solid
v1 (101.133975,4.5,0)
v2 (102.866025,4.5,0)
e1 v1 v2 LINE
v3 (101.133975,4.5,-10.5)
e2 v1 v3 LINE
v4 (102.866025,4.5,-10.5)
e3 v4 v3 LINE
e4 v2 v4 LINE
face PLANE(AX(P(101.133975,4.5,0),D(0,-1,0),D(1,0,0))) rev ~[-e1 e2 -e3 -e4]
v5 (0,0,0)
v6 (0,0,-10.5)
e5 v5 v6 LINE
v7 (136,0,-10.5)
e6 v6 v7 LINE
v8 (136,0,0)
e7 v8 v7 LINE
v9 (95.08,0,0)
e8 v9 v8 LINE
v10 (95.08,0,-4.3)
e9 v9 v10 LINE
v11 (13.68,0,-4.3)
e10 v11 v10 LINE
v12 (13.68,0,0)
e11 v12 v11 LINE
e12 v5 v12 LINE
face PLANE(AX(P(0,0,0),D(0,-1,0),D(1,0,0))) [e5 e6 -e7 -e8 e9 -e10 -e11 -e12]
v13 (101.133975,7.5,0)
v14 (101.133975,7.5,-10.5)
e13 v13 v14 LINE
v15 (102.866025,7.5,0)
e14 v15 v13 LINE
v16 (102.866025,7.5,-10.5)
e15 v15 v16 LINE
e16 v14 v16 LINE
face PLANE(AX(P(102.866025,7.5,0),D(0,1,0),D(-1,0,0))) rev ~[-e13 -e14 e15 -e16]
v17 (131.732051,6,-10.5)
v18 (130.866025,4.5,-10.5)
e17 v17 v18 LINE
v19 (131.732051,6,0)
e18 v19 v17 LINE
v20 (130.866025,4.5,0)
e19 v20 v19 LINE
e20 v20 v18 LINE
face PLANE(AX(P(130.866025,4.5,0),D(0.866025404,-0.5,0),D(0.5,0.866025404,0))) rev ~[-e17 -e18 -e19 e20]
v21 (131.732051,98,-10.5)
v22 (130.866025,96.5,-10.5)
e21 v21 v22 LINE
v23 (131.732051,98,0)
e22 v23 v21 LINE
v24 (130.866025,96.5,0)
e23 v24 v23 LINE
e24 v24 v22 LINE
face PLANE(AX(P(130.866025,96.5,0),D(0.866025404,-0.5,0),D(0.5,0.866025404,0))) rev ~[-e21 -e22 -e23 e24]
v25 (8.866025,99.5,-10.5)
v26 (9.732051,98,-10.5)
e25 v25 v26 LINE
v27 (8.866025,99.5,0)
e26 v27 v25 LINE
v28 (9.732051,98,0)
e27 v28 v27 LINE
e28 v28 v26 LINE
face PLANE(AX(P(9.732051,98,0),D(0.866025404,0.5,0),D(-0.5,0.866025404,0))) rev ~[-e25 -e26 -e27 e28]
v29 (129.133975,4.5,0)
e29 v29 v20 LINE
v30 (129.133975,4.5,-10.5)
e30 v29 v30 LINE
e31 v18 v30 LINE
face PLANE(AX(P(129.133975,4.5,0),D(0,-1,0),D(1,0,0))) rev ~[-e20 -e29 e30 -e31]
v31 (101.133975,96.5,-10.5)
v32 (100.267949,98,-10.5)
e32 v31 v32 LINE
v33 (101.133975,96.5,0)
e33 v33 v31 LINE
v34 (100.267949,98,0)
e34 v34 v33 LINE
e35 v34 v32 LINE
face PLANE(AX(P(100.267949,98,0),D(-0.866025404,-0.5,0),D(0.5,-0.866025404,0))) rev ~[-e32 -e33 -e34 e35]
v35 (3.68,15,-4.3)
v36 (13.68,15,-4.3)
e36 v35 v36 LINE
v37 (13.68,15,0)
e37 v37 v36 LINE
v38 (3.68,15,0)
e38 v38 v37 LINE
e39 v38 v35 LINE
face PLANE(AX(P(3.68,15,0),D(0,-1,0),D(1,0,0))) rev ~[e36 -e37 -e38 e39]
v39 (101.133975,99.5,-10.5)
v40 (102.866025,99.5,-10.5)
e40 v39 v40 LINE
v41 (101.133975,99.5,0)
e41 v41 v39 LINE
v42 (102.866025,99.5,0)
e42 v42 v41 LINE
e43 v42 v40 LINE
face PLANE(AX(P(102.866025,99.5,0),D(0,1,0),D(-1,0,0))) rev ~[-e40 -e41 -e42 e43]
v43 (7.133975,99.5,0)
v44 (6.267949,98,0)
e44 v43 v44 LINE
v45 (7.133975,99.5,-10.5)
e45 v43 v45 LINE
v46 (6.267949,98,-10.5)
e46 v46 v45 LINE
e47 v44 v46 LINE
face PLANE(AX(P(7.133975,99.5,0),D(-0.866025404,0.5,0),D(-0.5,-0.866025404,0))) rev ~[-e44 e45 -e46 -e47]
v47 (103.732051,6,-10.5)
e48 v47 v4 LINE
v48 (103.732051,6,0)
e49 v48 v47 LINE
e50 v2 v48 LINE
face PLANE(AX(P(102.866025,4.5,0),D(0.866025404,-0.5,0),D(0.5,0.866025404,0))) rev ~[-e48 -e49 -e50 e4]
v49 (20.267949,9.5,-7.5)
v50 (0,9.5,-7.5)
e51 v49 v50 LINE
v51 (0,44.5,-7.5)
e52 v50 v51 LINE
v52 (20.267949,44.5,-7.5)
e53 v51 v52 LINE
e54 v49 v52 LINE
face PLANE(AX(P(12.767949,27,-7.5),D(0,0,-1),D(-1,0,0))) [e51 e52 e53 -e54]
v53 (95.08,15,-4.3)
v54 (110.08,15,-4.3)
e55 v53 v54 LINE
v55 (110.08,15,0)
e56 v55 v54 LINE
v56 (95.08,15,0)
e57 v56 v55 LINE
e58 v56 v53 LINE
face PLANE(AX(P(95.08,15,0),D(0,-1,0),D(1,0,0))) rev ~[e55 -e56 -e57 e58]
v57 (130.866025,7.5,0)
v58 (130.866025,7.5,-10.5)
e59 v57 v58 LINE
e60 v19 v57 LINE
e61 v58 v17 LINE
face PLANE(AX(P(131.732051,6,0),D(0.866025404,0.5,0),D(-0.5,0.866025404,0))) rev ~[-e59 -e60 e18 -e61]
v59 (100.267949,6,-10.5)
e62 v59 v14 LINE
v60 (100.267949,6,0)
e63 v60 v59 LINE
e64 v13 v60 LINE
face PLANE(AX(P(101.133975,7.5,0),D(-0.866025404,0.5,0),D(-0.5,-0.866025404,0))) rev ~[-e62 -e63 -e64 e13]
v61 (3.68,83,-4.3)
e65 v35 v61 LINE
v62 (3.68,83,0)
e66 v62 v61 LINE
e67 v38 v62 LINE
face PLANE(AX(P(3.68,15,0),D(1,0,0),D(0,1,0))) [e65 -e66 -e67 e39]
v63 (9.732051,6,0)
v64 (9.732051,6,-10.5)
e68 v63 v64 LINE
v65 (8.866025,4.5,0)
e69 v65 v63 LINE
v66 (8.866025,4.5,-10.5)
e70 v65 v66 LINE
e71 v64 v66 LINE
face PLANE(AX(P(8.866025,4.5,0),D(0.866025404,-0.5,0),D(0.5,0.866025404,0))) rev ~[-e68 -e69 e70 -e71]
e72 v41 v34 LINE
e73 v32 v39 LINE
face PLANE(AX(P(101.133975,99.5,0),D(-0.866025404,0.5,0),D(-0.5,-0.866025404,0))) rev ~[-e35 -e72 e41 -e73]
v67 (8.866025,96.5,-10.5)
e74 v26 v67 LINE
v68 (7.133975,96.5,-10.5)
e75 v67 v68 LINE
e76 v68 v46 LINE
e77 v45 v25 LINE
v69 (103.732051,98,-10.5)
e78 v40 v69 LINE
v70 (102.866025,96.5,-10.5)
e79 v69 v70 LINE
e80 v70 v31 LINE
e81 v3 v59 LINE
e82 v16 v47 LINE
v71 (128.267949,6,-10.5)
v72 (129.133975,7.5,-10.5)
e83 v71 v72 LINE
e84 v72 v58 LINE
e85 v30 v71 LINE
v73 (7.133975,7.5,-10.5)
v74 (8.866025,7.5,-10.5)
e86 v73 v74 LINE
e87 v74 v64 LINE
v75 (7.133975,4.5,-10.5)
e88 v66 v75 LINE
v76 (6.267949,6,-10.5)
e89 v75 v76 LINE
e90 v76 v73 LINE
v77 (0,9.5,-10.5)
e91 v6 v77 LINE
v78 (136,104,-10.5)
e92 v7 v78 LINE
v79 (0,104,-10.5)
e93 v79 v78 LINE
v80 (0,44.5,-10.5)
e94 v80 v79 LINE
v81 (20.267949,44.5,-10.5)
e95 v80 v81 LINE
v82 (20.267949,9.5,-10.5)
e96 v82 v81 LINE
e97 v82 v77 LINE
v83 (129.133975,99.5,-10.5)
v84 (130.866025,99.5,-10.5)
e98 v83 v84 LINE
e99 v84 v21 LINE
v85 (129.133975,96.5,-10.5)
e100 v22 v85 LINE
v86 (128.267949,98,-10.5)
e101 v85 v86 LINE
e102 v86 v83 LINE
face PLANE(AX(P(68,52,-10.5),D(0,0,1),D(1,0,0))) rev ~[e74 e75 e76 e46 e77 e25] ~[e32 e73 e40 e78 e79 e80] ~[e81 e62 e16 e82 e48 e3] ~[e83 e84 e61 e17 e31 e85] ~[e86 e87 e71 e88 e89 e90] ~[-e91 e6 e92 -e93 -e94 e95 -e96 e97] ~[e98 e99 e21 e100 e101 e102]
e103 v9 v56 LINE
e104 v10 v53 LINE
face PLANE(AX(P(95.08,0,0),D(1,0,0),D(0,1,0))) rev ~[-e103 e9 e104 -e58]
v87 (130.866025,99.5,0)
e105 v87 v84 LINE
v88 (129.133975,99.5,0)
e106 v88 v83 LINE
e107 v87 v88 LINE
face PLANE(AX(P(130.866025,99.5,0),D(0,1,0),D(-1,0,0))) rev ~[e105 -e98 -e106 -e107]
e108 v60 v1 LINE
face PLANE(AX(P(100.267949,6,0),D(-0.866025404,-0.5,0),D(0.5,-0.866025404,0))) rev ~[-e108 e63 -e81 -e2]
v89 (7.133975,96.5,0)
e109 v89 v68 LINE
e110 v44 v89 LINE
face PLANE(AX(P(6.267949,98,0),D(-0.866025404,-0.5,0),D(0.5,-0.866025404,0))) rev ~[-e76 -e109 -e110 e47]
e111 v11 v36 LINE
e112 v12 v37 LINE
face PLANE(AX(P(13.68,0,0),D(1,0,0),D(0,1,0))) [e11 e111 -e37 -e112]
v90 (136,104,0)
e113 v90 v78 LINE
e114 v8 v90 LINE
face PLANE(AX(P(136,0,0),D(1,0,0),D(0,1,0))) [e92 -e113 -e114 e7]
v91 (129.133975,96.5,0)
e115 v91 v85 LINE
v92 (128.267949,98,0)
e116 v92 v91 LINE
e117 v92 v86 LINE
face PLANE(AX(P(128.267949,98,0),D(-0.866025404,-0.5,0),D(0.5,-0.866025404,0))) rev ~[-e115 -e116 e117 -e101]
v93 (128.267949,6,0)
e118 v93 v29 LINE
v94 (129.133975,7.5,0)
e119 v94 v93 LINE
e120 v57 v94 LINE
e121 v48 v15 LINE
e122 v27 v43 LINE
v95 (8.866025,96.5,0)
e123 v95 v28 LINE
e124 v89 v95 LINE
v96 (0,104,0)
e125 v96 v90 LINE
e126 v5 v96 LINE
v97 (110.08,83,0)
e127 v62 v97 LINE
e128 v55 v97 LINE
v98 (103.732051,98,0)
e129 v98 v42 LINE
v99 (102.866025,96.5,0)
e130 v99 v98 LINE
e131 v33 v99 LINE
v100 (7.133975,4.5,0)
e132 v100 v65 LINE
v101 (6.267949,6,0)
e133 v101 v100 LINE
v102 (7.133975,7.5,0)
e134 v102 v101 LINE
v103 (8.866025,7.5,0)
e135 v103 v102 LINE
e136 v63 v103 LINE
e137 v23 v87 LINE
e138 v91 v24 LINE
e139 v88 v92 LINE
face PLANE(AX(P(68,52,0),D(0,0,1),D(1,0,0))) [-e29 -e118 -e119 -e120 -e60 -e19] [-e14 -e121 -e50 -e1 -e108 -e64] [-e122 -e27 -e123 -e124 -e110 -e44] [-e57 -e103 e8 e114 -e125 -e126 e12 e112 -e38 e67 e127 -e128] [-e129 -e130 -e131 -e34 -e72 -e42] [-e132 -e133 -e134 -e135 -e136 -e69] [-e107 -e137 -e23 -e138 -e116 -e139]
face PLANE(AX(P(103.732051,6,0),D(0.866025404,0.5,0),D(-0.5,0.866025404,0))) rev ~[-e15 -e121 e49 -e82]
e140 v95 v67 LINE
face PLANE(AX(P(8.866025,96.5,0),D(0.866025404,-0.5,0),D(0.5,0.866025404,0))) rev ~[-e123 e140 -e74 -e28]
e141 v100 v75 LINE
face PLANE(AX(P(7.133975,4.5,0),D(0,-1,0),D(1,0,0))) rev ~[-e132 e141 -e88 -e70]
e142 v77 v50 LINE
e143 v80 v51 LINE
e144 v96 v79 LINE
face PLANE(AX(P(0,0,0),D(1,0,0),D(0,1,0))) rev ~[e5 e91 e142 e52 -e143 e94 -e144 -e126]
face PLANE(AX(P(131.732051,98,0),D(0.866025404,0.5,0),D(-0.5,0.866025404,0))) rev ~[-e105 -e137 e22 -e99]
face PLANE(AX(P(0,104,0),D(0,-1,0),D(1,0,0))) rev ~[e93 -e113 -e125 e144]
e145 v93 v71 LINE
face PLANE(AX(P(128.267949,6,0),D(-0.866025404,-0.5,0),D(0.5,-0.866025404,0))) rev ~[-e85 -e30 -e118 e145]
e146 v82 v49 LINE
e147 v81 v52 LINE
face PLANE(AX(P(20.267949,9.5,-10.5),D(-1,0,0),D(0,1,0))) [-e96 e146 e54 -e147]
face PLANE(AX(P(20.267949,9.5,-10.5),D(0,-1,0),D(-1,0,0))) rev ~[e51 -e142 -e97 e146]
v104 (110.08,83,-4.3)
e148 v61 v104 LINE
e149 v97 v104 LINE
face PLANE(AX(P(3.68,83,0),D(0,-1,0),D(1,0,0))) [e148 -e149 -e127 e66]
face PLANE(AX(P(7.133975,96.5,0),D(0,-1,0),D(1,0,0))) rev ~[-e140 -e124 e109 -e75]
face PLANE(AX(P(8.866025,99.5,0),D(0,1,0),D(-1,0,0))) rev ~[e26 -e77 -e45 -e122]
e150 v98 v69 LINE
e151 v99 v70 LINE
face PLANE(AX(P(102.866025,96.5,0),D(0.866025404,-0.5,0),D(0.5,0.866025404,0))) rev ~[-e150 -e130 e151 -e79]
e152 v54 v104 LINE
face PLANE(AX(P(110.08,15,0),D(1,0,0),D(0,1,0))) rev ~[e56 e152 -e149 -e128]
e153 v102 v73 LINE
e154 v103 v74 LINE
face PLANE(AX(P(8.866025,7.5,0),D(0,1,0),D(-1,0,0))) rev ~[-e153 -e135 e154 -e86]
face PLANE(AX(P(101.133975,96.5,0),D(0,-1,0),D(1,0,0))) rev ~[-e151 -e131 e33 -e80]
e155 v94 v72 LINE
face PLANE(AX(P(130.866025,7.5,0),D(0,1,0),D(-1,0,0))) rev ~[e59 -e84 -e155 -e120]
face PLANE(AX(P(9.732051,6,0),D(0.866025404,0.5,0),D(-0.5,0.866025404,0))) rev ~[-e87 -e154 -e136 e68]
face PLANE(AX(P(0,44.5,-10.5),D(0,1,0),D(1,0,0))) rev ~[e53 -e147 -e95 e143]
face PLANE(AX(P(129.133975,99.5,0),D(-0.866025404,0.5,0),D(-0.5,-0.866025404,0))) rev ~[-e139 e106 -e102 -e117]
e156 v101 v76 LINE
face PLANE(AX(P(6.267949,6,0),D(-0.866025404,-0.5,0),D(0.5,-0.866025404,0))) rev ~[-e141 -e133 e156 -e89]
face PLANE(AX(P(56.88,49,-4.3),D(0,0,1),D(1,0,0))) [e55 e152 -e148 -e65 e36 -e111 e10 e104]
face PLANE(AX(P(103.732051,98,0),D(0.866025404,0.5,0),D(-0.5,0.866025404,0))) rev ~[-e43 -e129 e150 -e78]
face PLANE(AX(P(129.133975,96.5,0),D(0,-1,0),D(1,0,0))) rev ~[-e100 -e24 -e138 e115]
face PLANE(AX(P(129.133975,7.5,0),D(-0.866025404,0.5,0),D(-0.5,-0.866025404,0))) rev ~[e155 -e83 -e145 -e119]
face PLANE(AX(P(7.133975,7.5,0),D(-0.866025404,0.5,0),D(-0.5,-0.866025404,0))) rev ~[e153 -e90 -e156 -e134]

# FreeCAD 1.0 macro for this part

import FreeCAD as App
import Part
import Sketcher

V = App.Vector
Q = App.Units.Quantity


def add_polygon(sketch, points):
    """Adds a closed chain of lines whose ends are joined by coincident constraints."""
    first, n = sketch.GeometryCount, len(points)
    for a, b in zip(points, points[1:] + points[:1]):
        sketch.addGeometry(Part.LineSegment(App.Vector(*a, 0), App.Vector(*b, 0)), False)
    for i in range(n):
        sketch.addConstraint(Sketcher.Constraint("Coincident", first + i, 2, first + (i + 1) % n, 1))

doc = App.newDocument("Part")
body = doc.addObject("PartDesign::Body", "Body")

# Sketch on XY plane
sketch1 = body.newObject("Sketcher::SketchObject", "Sketch")
sketch1.AttachmentSupport = (doc.getObject("XY_Plane"), [""])
sketch1.MapMode = "FlatFace"
add_polygon(sketch1, [(0, 104), (0, 0), (136, 0), (136, 104)])  # lines 0-3
sketch1.addConstraint([
    Sketcher.Constraint("Vertical", 0),
    Sketcher.Constraint("Horizontal", 1),
    Sketcher.Constraint("Vertical", 2),
    Sketcher.Constraint("Horizontal", 3),
    Sketcher.Constraint("Coincident", 0, 2, -1, 1),
    Sketcher.Constraint("DistanceX", 1, 1, 1, 2, Q("136 mm")),
    Sketcher.Constraint("DistanceY", 0, 2, 0, 1, Q("104 mm")),
])
pad1 = body.newObject("PartDesign::Pad", "Pad")
pad1.Profile = sketch1
pad1.Length = 10.5
pad1.Reversed = True

# Sketch on XY plane
sketch2 = body.newObject("Sketcher::SketchObject", "Sketch001")
sketch2.AttachmentSupport = (doc.getObject("XY_Plane"), [""])
sketch2.MapMode = "FlatFace"
add_polygon(sketch2, [(4, 83), (4, 15), (14, 15), (14, 0), (95, 0), (95, 15), (110, 15), (110, 83)])  # lines 0-7
sketch2.addConstraint([
    Sketcher.Constraint("Vertical", 0),
    Sketcher.Constraint("Horizontal", 1),
    Sketcher.Constraint("Vertical", 2),
    Sketcher.Constraint("Horizontal", 3),
    Sketcher.Constraint("Vertical", 4),
    Sketcher.Constraint("Horizontal", 5),
    Sketcher.Constraint("Vertical", 6),
    Sketcher.Constraint("Horizontal", 7),
    Sketcher.Constraint("PointOnObject", 2, 2, -1),
    Sketcher.Constraint("Horizontal", 1, 2, 4, 2),
    Sketcher.Constraint("Equal", 5, 2),
    Sketcher.Constraint("DistanceX", 1, 1, 1, 2, Q("10 mm")),
    Sketcher.Constraint("DistanceX", 5, 1, 5, 2, Q("15 mm")),
    Sketcher.Constraint("DistanceY", 0, 2, 0, 1, Q("68 mm")),
    Sketcher.Constraint("DistanceX", 3, 1, 3, 2, Q("81.4 mm")),
    Sketcher.Constraint("DistanceX", -1, 1, 0, 2, Q("3.68 mm")),
])
pocket1 = body.newObject("PartDesign::Pocket", "Pocket")
pocket1.Profile = sketch2
pocket1.Length = 4.3

# Sketch on XY plane
sketch3 = body.newObject("Sketcher::SketchObject", "Sketch002")
sketch3.AttachmentSupport = (doc.getObject("XY_Plane"), [""])
sketch3.MapMode = "FlatFace"
add_polygon(sketch3, [(7.1, 96.5), (8.9, 96.5), (9.7, 98), (8.9, 99.5), (7.1, 99.5), (6.3, 98)])  # lines 0-5
sketch3.addConstraint([
    Sketcher.Constraint("Horizontal", 0),
    Sketcher.Constraint("Horizontal", 3),
    Sketcher.Constraint("Parallel", 1, 4),
    Sketcher.Constraint("Parallel", 2, 5),
    Sketcher.Constraint("Horizontal", 1, 2, 4, 2),
    Sketcher.Constraint("Vertical", 0, 2, 2, 2),
    Sketcher.Constraint("Vertical", 3, 2, 5, 2),
    Sketcher.Constraint("Angle", 1, Q("60 deg")),
    Sketcher.Constraint("DistanceY", -1, 1, 1, 2, Q("98 mm")),
    Sketcher.Constraint("DistanceY", 0, 2, 2, 2, Q("3 mm")),
    Sketcher.Constraint("DistanceX", 0, 1, 0, 2, Q("1.732051 mm")),
    Sketcher.Constraint("DistanceX", -1, 1, 1, 2, Q("9.732051 mm")),
])
pocket2 = body.newObject("PartDesign::Pocket", "Pocket001")
pocket2.Profile = sketch3
pocket2.Type = "UpToFirst"

# Sketch on XY plane
sketch4 = body.newObject("Sketcher::SketchObject", "Sketch003")
sketch4.AttachmentSupport = (doc.getObject("XY_Plane"), [""])
sketch4.MapMode = "FlatFace"
add_polygon(sketch4, [(129.1, 96.5), (130.9, 96.5), (131.7, 98), (130.9, 99.5), (129.1, 99.5), (128.3, 98)])  # lines 0-5
sketch4.addConstraint([
    Sketcher.Constraint("Horizontal", 0),
    Sketcher.Constraint("Horizontal", 3),
    Sketcher.Constraint("Parallel", 1, 4),
    Sketcher.Constraint("Parallel", 2, 5),
    Sketcher.Constraint("Horizontal", 1, 2, 4, 2),
    Sketcher.Constraint("Vertical", 0, 2, 2, 2),
    Sketcher.Constraint("Vertical", 3, 2, 5, 2),
    Sketcher.Constraint("Angle", 1, Q("60 deg")),
    Sketcher.Constraint("DistanceY", -1, 1, 1, 2, Q("98 mm")),
    Sketcher.Constraint("DistanceY", 0, 2, 2, 2, Q("3 mm")),
    Sketcher.Constraint("DistanceX", 0, 1, 0, 2, Q("1.732051 mm")),
    Sketcher.Constraint("DistanceX", -1, 1, 1, 2, Q("131.732051 mm")),
])
pocket3 = body.newObject("PartDesign::Pocket", "Pocket002")
pocket3.Profile = sketch4
pocket3.Type = "UpToFirst"

# Sketch on XY plane
sketch5 = body.newObject("Sketcher::SketchObject", "Sketch004")
sketch5.AttachmentSupport = (doc.getObject("XY_Plane"), [""])
sketch5.MapMode = "FlatFace"
add_polygon(sketch5, [(130.9, 7.5), (129.1, 7.5), (128.3, 6), (129.1, 4.5), (130.9, 4.5), (131.7, 6)])  # lines 0-5
sketch5.addConstraint([
    Sketcher.Constraint("Horizontal", 0),
    Sketcher.Constraint("Horizontal", 3),
    Sketcher.Constraint("Parallel", 1, 4),
    Sketcher.Constraint("Parallel", 2, 5),
    Sketcher.Constraint("Horizontal", 1, 2, 4, 2),
    Sketcher.Constraint("Vertical", 0, 2, 2, 2),
    Sketcher.Constraint("Vertical", 3, 2, 5, 2),
    Sketcher.Constraint("Angle", 1, Q("-120 deg")),
    Sketcher.Constraint("DistanceY", -1, 1, 1, 2, Q("6 mm")),
    Sketcher.Constraint("DistanceY", 2, 2, 0, 2, Q("3 mm")),
    Sketcher.Constraint("DistanceX", 0, 2, 0, 1, Q("1.732051 mm")),
    Sketcher.Constraint("DistanceX", -1, 1, 1, 2, Q("128.267949 mm")),
])
pocket4 = body.newObject("PartDesign::Pocket", "Pocket003")
pocket4.Profile = sketch5
pocket4.Type = "UpToFirst"

# Sketch on XY plane
sketch6 = body.newObject("Sketcher::SketchObject", "Sketch005")
sketch6.AttachmentSupport = (doc.getObject("XY_Plane"), [""])
sketch6.MapMode = "FlatFace"
add_polygon(sketch6, [(7.1, 4.5), (8.9, 4.5), (9.7, 6), (8.9, 7.5), (7.1, 7.5), (6.3, 6)])  # lines 0-5
sketch6.addConstraint([
    Sketcher.Constraint("Horizontal", 0),
    Sketcher.Constraint("Horizontal", 3),
    Sketcher.Constraint("Parallel", 1, 4),
    Sketcher.Constraint("Parallel", 2, 5),
    Sketcher.Constraint("Horizontal", 1, 2, 4, 2),
    Sketcher.Constraint("Vertical", 0, 2, 2, 2),
    Sketcher.Constraint("Vertical", 3, 2, 5, 2),
    Sketcher.Constraint("Angle", 1, Q("60 deg")),
    Sketcher.Constraint("DistanceY", -1, 1, 1, 2, Q("6 mm")),
    Sketcher.Constraint("DistanceY", 0, 2, 2, 2, Q("3 mm")),
    Sketcher.Constraint("DistanceX", 0, 1, 0, 2, Q("1.732051 mm")),
    Sketcher.Constraint("DistanceX", -1, 1, 1, 2, Q("9.732051 mm")),
])
pocket5 = body.newObject("PartDesign::Pocket", "Pocket004")
pocket5.Profile = sketch6
pocket5.Type = "UpToFirst"

# Sketch on XY plane
sketch7 = body.newObject("Sketcher::SketchObject", "Sketch006")
sketch7.AttachmentSupport = (doc.getObject("XY_Plane"), [""])
sketch7.MapMode = "FlatFace"
add_polygon(sketch7, [(101.1, 4.5), (102.9, 4.5), (103.7, 6), (102.9, 7.5), (101.1, 7.5), (100.3, 6)])  # lines 0-5
sketch7.addConstraint([
    Sketcher.Constraint("Horizontal", 0),
    Sketcher.Constraint("Horizontal", 3),
    Sketcher.Constraint("Parallel", 1, 4),
    Sketcher.Constraint("Parallel", 2, 5),
    Sketcher.Constraint("Horizontal", 1, 2, 4, 2),
    Sketcher.Constraint("Vertical", 0, 2, 2, 2),
    Sketcher.Constraint("Vertical", 3, 2, 5, 2),
    Sketcher.Constraint("Angle", 1, Q("60 deg")),
    Sketcher.Constraint("DistanceY", -1, 1, 1, 2, Q("6 mm")),
    Sketcher.Constraint("DistanceY", 0, 2, 2, 2, Q("3 mm")),
    Sketcher.Constraint("DistanceX", 0, 1, 0, 2, Q("1.732051 mm")),
    Sketcher.Constraint("DistanceX", -1, 1, 1, 2, Q("103.732051 mm")),
])
pocket6 = body.newObject("PartDesign::Pocket", "Pocket005")
pocket6.Profile = sketch7
pocket6.Type = "UpToFirst"

# Sketch on XY plane
sketch8 = body.newObject("Sketcher::SketchObject", "Sketch007")
sketch8.AttachmentSupport = (doc.getObject("XY_Plane"), [""])
sketch8.MapMode = "FlatFace"
add_polygon(sketch8, [(103.7, 98), (102.9, 99.5), (101.1, 99.5), (100.3, 98), (101.1, 96.5), (102.9, 96.5)])  # lines 0-5
sketch8.addConstraint([
    Sketcher.Constraint("Horizontal", 1),
    Sketcher.Constraint("Horizontal", 4),
    Sketcher.Constraint("Parallel", 0, 3),
    Sketcher.Constraint("Parallel", 2, 5),
    Sketcher.Constraint("Horizontal", 2, 2, 5, 2),
    Sketcher.Constraint("Vertical", 1, 2, 3, 2),
    Sketcher.Constraint("Vertical", 0, 2, 4, 2),
    Sketcher.Constraint("Angle", 0, Q("120 deg")),
    Sketcher.Constraint("DistanceY", -1, 1, 2, 2, Q("98 mm")),
    Sketcher.Constraint("DistanceY", 3, 2, 1, 2, Q("3 mm")),
    Sketcher.Constraint("DistanceX", 1, 2, 1, 1, Q("1.732051 mm")),
    Sketcher.Constraint("DistanceX", -1, 1, 2, 2, Q("100.267949 mm")),
])
pocket7 = body.newObject("PartDesign::Pocket", "Pocket006")
pocket7.Profile = sketch8
pocket7.Type = "UpToFirst"

# Sketch on XY plane
sketch9 = body.newObject("Sketcher::SketchObject", "Sketch008")
sketch9.AttachmentSupport = (doc.getObject("XY_Plane"), [""])
sketch9.MapMode = "FlatFace"
sketch9.AttachmentOffset = App.Placement(V(0, 0, -10.5), App.Rotation())
add_polygon(sketch9, [(20, 44), (20, 10), (0, 10), (0, 44)])  # lines 0-3
sketch9.addConstraint([
    Sketcher.Constraint("Vertical", 0),
    Sketcher.Constraint("Horizontal", 1),
    Sketcher.Constraint("Vertical", 2),
    Sketcher.Constraint("Horizontal", 3),
    Sketcher.Constraint("PointOnObject", 1, 2, -2),
    Sketcher.Constraint("DistanceY", 0, 2, 0, 1, Q("35 mm")),
    Sketcher.Constraint("DistanceY", -1, 1, 0, 2, Q("9.5 mm")),
    Sketcher.Constraint("DistanceX", 1, 2, 1, 1, Q("20.267949 mm")),
])
pocket8 = body.newObject("PartDesign::Pocket", "Pocket007")
pocket8.Profile = sketch9
pocket8.Length = 3
pocket8.Reversed = True

doc.recompute()
